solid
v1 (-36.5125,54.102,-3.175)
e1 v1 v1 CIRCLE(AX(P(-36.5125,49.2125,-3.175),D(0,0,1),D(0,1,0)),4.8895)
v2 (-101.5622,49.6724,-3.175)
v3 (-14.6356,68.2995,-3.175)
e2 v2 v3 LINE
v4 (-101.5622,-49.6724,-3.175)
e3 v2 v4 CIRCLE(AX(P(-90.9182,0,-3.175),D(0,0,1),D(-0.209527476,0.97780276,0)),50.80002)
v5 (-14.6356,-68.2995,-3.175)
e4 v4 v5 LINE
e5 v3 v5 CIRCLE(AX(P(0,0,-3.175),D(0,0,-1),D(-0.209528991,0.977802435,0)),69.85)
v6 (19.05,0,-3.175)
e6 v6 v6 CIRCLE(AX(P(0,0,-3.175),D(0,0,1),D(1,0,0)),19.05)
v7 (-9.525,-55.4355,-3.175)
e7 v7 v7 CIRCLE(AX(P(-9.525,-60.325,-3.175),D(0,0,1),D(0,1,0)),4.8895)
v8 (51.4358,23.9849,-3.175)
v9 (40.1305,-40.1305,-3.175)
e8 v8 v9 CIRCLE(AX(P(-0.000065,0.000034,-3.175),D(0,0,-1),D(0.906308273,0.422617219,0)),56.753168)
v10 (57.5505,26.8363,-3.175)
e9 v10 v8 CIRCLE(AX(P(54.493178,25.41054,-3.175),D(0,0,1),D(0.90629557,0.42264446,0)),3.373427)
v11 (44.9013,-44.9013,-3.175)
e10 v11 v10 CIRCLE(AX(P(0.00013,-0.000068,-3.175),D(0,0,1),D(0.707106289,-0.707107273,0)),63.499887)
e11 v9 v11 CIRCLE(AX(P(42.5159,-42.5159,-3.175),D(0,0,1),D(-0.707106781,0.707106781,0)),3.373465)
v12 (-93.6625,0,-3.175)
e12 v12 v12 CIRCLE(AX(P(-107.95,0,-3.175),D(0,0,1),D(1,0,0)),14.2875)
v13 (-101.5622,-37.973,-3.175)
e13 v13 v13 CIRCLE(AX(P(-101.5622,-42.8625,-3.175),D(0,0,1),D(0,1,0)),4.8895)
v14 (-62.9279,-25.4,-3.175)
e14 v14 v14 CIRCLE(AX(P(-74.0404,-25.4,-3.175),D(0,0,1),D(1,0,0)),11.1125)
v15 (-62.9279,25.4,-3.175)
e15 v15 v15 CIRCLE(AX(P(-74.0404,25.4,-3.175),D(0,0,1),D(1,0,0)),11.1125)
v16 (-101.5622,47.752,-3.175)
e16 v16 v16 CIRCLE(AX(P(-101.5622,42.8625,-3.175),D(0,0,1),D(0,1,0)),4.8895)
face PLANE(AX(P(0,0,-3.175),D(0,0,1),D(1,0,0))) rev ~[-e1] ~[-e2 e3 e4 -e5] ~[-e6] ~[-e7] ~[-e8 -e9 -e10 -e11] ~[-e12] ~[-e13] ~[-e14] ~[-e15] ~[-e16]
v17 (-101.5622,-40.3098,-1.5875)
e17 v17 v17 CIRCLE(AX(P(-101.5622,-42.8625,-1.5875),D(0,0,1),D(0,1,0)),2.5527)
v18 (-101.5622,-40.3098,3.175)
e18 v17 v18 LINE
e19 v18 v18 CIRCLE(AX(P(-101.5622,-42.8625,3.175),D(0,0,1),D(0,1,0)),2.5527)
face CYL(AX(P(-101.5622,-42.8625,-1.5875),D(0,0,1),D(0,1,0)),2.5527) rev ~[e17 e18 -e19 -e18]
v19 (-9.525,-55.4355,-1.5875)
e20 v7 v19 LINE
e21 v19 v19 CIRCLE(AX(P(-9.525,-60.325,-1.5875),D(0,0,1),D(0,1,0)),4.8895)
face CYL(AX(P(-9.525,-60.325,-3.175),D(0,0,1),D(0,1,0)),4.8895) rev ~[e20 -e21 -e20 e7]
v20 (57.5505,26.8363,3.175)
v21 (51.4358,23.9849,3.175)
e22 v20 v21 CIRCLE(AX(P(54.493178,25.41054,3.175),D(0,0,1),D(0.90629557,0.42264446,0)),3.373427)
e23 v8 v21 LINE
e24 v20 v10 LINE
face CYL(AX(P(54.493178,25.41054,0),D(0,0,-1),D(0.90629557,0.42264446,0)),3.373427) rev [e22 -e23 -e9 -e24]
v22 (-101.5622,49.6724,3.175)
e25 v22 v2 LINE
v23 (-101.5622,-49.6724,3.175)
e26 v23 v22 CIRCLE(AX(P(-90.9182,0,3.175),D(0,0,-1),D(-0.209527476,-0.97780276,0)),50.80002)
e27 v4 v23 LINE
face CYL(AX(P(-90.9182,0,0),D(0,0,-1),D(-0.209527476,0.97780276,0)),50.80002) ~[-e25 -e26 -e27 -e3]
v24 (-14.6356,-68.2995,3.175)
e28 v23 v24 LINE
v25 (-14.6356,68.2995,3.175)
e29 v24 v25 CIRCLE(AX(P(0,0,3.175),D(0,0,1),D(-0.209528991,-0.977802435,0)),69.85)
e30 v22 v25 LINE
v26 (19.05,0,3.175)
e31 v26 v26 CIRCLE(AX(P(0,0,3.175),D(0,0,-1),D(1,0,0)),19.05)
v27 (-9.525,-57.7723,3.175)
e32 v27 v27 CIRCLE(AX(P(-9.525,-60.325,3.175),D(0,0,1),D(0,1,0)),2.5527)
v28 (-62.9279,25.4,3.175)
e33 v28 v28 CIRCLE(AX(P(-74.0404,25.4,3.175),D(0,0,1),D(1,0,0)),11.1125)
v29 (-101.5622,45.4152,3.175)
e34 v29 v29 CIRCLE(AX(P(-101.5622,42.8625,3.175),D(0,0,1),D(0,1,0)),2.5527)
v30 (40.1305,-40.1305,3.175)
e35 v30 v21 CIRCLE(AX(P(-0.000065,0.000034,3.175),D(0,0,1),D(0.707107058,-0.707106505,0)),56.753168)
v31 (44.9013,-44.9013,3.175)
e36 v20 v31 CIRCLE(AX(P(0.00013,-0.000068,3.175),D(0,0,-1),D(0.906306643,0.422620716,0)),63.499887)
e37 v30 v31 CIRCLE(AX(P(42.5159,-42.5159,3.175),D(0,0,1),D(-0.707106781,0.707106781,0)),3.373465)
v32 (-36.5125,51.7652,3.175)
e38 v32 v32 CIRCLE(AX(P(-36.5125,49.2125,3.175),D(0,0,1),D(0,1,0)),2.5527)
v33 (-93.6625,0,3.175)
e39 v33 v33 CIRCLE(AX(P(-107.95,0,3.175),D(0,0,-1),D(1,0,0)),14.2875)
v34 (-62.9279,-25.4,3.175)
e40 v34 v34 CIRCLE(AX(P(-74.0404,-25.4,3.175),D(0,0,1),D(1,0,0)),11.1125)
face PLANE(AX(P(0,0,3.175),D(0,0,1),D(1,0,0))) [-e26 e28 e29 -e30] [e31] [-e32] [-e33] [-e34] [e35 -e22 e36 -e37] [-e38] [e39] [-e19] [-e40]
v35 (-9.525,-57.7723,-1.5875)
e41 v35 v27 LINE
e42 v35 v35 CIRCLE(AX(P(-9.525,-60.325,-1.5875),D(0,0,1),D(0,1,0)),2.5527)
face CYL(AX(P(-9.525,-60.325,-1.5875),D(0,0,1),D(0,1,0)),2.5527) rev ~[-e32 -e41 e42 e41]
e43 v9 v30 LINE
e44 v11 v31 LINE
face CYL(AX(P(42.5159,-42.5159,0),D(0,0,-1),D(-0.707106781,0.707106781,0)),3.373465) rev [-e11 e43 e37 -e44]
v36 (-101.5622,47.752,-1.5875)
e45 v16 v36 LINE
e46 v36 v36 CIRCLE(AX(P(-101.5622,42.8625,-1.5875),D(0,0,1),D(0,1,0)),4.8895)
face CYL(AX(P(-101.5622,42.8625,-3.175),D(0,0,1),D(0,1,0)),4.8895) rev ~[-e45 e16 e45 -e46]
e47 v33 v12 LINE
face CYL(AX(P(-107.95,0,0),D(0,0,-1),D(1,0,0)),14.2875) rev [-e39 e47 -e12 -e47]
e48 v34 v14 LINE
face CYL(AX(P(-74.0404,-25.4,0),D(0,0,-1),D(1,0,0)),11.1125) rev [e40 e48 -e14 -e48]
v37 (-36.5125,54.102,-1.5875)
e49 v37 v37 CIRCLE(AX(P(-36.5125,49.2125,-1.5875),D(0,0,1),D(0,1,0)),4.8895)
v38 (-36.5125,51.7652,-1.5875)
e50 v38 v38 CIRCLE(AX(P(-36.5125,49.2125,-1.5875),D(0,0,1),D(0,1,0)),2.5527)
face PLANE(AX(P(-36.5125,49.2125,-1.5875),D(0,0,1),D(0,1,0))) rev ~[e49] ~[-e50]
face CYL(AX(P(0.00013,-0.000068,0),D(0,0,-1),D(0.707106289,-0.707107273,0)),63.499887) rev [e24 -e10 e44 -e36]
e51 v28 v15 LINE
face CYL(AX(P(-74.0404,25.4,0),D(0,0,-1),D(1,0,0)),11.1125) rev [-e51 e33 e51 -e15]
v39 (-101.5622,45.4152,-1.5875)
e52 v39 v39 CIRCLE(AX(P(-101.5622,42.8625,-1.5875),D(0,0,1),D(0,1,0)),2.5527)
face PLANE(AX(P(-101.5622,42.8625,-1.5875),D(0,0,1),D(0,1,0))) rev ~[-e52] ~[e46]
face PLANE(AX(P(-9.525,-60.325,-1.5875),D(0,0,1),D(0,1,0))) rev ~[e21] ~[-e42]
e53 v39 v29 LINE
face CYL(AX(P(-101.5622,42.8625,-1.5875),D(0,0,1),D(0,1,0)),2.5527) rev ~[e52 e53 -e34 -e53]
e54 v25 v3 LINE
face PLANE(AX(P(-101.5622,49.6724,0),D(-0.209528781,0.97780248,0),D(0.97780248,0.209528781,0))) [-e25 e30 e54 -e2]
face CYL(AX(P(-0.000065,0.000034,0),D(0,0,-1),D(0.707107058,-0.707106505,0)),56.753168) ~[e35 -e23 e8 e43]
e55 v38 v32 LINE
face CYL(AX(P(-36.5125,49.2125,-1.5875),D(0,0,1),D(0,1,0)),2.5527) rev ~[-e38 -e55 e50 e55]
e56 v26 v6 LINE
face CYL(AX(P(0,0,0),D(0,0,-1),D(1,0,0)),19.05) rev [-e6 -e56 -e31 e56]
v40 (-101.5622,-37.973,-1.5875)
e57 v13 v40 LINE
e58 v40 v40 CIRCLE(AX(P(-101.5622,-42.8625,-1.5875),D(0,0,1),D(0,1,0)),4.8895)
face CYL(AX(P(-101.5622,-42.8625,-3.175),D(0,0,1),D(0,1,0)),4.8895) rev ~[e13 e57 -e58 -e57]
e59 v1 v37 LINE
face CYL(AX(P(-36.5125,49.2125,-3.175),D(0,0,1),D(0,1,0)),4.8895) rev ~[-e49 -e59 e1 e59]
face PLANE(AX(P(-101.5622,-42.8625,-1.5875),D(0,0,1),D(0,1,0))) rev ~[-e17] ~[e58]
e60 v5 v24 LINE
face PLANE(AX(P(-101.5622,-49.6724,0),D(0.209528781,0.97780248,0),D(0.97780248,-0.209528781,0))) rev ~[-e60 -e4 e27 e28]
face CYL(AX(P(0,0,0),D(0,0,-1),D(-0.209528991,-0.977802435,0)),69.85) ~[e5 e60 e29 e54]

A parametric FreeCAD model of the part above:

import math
import FreeCAD as App
import Part
import Sketcher
Q = App.Units.Quantity

doc = App.newDocument("Part")
body = doc.addObject("PartDesign::Body", "Body")

sketch1 = doc.addObject("Sketcher::SketchObject", "Sketch")
body.addObject(sketch1)
sketch1.AttachmentSupport = (doc.XY_Plane, [""])
sketch1.MapMode = "FlatFace"
sketch1.addGeometry([
    Part.ArcOfCircle(Part.Circle(App.Vector(-90.9182, 0, 0), App.Vector(0, 0, 1), 50.80002), math.radians(102.094663), math.radians(257.905337)),
    Part.LineSegment(App.Vector(-101.5622, -49.6724, 0), App.Vector(-14.6356, -68.2995, 0)),
    Part.ArcOfCircle(Part.Circle(App.Vector(0, 0, 0), App.Vector(0, 0, 1), 69.85), math.radians(-102.094751), math.radians(102.094751)),
    Part.LineSegment(App.Vector(-14.6356, 68.2995, 0), App.Vector(-101.5622, 49.6724, 0)),
    Part.Circle(App.Vector(0, 0, 0), App.Vector(0, 0, 1), 19.05),
    Part.Circle(App.Vector(-107.95, 0, 0), App.Vector(0, 0, 1), 14.2875),
    Part.Circle(App.Vector(-74.0404, 25.4, 0), App.Vector(0, 0, 1), 11.1125),
    Part.ArcOfCircle(Part.Circle(App.Vector(0, 0, 0), App.Vector(0, 0, 1), 63.500027), math.radians(-45), math.radians(25.00005)),
    Part.ArcOfCircle(Part.Circle(App.Vector(42.5159, -42.5159, 0), App.Vector(0, 0, 1), 3.373465), math.radians(135), math.radians(315)),
    Part.ArcOfCircle(Part.Circle(App.Vector(0, 0, 0), App.Vector(0, 0, 1), 56.753097), math.radians(-45), math.radians(24.999993)),
    Part.ArcOfCircle(Part.Circle(App.Vector(54.4932, 25.4106, 0), App.Vector(0, 0, 1), 3.373382), math.radians(25.000887), math.radians(205.000169)),
    Part.Circle(App.Vector(-74.0404, -25.4, 0), App.Vector(0, 0, 1), 11.1125),
], False)
sketch1.addConstraint([
    Sketcher.Constraint("Tangent", 0, 2, 1, 1),
    Sketcher.Constraint("Tangent", 1, 2, 2, 1),
    Sketcher.Constraint("Tangent", 2, 2, 3, 1),
    Sketcher.Constraint("Tangent", 3, 2, 0, 1),
    Sketcher.Constraint("Tangent", 7, 1, 8, 2),
    Sketcher.Constraint("Tangent", 8, 1, 9, 1),
    Sketcher.Constraint("Tangent", 9, 2, 10, 2),
    Sketcher.Constraint("Tangent", 10, 1, 7, 2),
    Sketcher.Constraint("Coincident", 2, 3, -1, 1),
    Sketcher.Constraint("Coincident", 4, 3, -1, 1),
    Sketcher.Constraint("Coincident", 7, 3, -1, 1),
    Sketcher.Constraint("Coincident", 9, 3, -1, 1),
    Sketcher.Constraint("Equal", 6, 11),
    Sketcher.Constraint("Symmetric", 6, 3, 11, 3, -1),
    Sketcher.Constraint("PointOnObject", 0, 3, -1),
    Sketcher.Constraint("PointOnObject", 5, 3, -1),
    Sketcher.Constraint("Radius", 0, Q("2 in")),
    Sketcher.Constraint("Diameter", 4, Q("1.5 in")),
    Sketcher.Constraint("Diameter", 5, Q("1.125 in")),
    Sketcher.Constraint("Diameter", 6, Q("0.875 in")),
    Sketcher.Constraint("DistanceY", 11, 3, 6, 3, Q("2 in")),
    Sketcher.Constraint("Distance", 1, Q("3.5 in")),
    Sketcher.Constraint("Radius", 7, Q("2.5 in")),
    Sketcher.Constraint("Radius", 10, Q("0.1328 in")),
    Sketcher.Constraint("DistanceX", 5, 3, -1, 1, Q("4.25 in")),
    Sketcher.Constraint("Radius", 2, Q("2.75 in")),
    Sketcher.Constraint("DistanceX", -1, 1, 10, 3, Q("2.1454 in")),
    Sketcher.Constraint("DistanceX", 0, 3, 8, 3, Q("5.2533 in")),
    Sketcher.Constraint("DistanceX", 6, 3, -1, 1, Q("74.0404 mm")),
])
pad1 = doc.addObject("PartDesign::Pad", "Pad")
body.addObject(pad1)
pad1.Profile = sketch1
pad1.Length = Q("0.25 in")
pad1.Midplane = True

sketch2 = doc.addObject("Sketcher::SketchObject", "Sketch001")
body.addObject(sketch2)
sketch2.AttachmentSupport = (doc.XY_Plane, [""])
sketch2.MapMode = "FlatFace"
sketch2.AttachmentOffset = App.Placement(App.Vector(0, 0, -0.125 * 25.4), App.Rotation())
sketch2.addGeometry([
    Part.Circle(App.Vector(-36.5125, 49.2125, 0), App.Vector(0, 0, 1), 2.5527),
    Part.Circle(App.Vector(-9.525, -60.325, 0), App.Vector(0, 0, 1), 2.5527),
], False)
sketch2.addConstraint([
    Sketcher.Constraint("Equal", 0, 1),
    Sketcher.Constraint("Diameter", 0, Q("0.201 in")),
    Sketcher.Constraint("DistanceX", 0, 3, -1, 1, Q("1.4375 in")),
    Sketcher.Constraint("DistanceY", -1, 1, 0, 3, Q("1.9375 in")),
    Sketcher.Constraint("DistanceX", 1, 3, -1, 1, Q("0.375 in")),
    Sketcher.Constraint("DistanceY", 1, 3, -1, 1, Q("2.375 in")),
])
doc.recompute()
hole = doc.addObject("PartDesign::Hole", "Hole")
body.addObject(hole)
hole.Profile = sketch2
hole.ThreadType = "None"
hole.Diameter = Q("0.201 in")
hole.DepthType = "ThroughAll"
hole.HoleCutType = "Counterbore"
hole.HoleCutDiameter = Q("0.385 in")
hole.HoleCutDepth = Q("0.0625 in")
hole.Reversed = True

sketch3 = doc.addObject("Sketcher::SketchObject", "Sketch002")
body.addObject(sketch3)
sketch3.AttachmentSupport = (doc.XY_Plane, [""])
sketch3.MapMode = "FlatFace"
sketch3.AttachmentOffset = App.Placement(App.Vector(0, 0, -0.125 * 25.4), App.Rotation())
sketch3.addGeometry([
    Part.Circle(App.Vector(-101.5622, 42.8625, 0), App.Vector(0, 0, 1), 2.5527),
    Part.Circle(App.Vector(-101.5622, -42.8625, 0), App.Vector(0, 0, 1), 2.5527),
], False)
sketch3.addConstraint([
    Sketcher.Constraint("Equal", 0, 1),
    Sketcher.Constraint("Symmetric", 0, 3, 1, 3, -1),
    Sketcher.Constraint("Diameter", 0, Q("0.201 in")),
    Sketcher.Constraint("DistanceY", -1, 1, 0, 3, Q("1.6875 in")),
    Sketcher.Constraint("DistanceX", 0, 3, -1, 1, Q("3.9985 in")),
])
doc.recompute()
hole2 = doc.addObject("PartDesign::Hole", "Hole001")
body.addObject(hole2)
hole2.Profile = sketch3
hole2.ThreadType = "None"
hole2.Diameter = Q("0.201 in")
hole2.DepthType = "ThroughAll"
hole2.HoleCutType = "Counterbore"
hole2.HoleCutDiameter = Q("0.385 in")
hole2.HoleCutDepth = Q("0.0625 in")
hole2.Reversed = True

doc.recompute()
